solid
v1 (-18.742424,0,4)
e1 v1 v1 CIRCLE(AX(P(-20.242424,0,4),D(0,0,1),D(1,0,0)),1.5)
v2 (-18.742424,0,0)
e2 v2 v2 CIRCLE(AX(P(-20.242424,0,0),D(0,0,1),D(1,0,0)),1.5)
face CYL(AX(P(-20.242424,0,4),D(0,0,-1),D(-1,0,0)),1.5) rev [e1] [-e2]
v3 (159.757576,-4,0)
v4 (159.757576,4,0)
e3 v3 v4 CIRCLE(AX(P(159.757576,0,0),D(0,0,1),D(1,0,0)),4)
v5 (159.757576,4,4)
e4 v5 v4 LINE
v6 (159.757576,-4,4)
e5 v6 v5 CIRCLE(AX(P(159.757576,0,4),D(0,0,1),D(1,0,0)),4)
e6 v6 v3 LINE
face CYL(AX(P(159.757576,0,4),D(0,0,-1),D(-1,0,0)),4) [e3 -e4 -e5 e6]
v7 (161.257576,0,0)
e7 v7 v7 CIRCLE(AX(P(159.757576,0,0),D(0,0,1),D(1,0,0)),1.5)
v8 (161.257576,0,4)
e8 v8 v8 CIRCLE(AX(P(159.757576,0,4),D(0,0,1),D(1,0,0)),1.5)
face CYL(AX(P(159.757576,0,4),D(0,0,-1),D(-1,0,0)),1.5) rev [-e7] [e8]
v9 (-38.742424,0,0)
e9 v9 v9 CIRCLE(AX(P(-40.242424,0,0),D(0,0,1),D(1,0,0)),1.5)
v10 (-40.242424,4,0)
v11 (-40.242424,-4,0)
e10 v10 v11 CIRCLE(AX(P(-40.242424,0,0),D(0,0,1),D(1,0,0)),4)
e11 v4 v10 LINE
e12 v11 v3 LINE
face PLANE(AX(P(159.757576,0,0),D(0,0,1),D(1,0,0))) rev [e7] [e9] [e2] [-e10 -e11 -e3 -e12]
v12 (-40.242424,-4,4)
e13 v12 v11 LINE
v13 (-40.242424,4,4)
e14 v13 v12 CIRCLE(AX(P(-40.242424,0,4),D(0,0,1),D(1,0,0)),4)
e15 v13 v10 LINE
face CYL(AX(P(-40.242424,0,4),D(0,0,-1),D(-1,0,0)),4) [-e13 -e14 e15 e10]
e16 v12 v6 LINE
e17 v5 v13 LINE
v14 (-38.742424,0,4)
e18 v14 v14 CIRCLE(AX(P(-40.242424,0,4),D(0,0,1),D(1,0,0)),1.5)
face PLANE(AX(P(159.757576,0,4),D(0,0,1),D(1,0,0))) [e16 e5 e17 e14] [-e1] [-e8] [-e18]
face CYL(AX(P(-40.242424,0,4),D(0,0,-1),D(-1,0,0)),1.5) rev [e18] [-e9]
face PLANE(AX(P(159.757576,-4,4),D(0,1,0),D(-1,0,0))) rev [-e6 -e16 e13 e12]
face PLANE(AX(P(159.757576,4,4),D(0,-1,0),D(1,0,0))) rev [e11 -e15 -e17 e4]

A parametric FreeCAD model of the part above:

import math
import FreeCAD as App
import Part
import Sketcher
from FreeCAD import Vector
Q = App.Units.Quantity

doc = App.newDocument("Part")
body = doc.addObject("PartDesign::Body", "Body")

sketch1 = body.newObject("Sketcher::SketchObject", "Sketch")
sketch1.AttachmentSupport = (doc.getObject("XY_Plane"), [""])
sketch1.MapMode = "FlatFace"
sketch1.addGeometry(Part.LineSegment(Vector(-40.242424, -4, 0), Vector(159.757576, -4, 0)), False)
sketch1.addGeometry(Part.ArcOfCircle(Part.Circle(Vector(159.757576, 0, 0), Vector(0, 0, 1), 4), math.radians(-90), math.radians(90)), False)
sketch1.addGeometry(Part.LineSegment(Vector(159.757576, 4, 0), Vector(-40.242424, 4, 0)), False)
sketch1.addGeometry(Part.ArcOfCircle(Part.Circle(Vector(-40.242424, 0, 0), Vector(0, 0, 1), 4), math.radians(90), math.radians(270)), False)
sketch1.addGeometry(Part.Circle(Vector(159.757576, 0, 0), Vector(0, 0, 1), 1.5), False)
sketch1.addGeometry(Part.Circle(Vector(-20.242424, 0, 0), Vector(0, 0, 1), 1.5), False)
sketch1.addGeometry(Part.Circle(Vector(-40.242424, 0, 0), Vector(0, 0, 1), 1.5), False)
sketch1.addConstraint(Sketcher.Constraint("Tangent", 0, 2, 1, 1))
sketch1.addConstraint(Sketcher.Constraint("Tangent", 1, 2, 2, 1))
sketch1.addConstraint(Sketcher.Constraint("Tangent", 2, 2, 3, 1))
sketch1.addConstraint(Sketcher.Constraint("Tangent", 3, 2, 0, 1))
sketch1.addConstraint(Sketcher.Constraint("Horizontal", 0))
sketch1.addConstraint(Sketcher.Constraint("Horizontal", 2))
sketch1.addConstraint(Sketcher.Constraint("Coincident", 4, 3, 1, 3))
sketch1.addConstraint(Sketcher.Constraint("Coincident", 6, 3, 3, 3))
sketch1.addConstraint(Sketcher.Constraint("Equal", 4, 5))
sketch1.addConstraint(Sketcher.Constraint("Equal", 5, 6))
sketch1.addConstraint(Sketcher.Constraint("PointOnObject", 1, 3, -1))
sketch1.addConstraint(Sketcher.Constraint("PointOnObject", 5, 3, -1))
sketch1.addConstraint(Sketcher.Constraint("Diameter", 4, Q("3 mm")))
sketch1.addConstraint(Sketcher.Constraint("Radius", 1, Q("4 mm")))
sketch1.addConstraint(Sketcher.Constraint("DistanceX", 0, 1, 0, 2, Q("200 mm")))
sketch1.addConstraint(Sketcher.Constraint("DistanceX", 3, 3, 5, 3, Q("20 mm")))
sketch1.addConstraint(Sketcher.Constraint("DistanceX", -1, 1, 1, 3, Q("159.757576 mm")))
pad1 = body.newObject("PartDesign::Pad", "Pad")
pad1.Profile = sketch1
pad1.Length = 4

doc.recompute()
